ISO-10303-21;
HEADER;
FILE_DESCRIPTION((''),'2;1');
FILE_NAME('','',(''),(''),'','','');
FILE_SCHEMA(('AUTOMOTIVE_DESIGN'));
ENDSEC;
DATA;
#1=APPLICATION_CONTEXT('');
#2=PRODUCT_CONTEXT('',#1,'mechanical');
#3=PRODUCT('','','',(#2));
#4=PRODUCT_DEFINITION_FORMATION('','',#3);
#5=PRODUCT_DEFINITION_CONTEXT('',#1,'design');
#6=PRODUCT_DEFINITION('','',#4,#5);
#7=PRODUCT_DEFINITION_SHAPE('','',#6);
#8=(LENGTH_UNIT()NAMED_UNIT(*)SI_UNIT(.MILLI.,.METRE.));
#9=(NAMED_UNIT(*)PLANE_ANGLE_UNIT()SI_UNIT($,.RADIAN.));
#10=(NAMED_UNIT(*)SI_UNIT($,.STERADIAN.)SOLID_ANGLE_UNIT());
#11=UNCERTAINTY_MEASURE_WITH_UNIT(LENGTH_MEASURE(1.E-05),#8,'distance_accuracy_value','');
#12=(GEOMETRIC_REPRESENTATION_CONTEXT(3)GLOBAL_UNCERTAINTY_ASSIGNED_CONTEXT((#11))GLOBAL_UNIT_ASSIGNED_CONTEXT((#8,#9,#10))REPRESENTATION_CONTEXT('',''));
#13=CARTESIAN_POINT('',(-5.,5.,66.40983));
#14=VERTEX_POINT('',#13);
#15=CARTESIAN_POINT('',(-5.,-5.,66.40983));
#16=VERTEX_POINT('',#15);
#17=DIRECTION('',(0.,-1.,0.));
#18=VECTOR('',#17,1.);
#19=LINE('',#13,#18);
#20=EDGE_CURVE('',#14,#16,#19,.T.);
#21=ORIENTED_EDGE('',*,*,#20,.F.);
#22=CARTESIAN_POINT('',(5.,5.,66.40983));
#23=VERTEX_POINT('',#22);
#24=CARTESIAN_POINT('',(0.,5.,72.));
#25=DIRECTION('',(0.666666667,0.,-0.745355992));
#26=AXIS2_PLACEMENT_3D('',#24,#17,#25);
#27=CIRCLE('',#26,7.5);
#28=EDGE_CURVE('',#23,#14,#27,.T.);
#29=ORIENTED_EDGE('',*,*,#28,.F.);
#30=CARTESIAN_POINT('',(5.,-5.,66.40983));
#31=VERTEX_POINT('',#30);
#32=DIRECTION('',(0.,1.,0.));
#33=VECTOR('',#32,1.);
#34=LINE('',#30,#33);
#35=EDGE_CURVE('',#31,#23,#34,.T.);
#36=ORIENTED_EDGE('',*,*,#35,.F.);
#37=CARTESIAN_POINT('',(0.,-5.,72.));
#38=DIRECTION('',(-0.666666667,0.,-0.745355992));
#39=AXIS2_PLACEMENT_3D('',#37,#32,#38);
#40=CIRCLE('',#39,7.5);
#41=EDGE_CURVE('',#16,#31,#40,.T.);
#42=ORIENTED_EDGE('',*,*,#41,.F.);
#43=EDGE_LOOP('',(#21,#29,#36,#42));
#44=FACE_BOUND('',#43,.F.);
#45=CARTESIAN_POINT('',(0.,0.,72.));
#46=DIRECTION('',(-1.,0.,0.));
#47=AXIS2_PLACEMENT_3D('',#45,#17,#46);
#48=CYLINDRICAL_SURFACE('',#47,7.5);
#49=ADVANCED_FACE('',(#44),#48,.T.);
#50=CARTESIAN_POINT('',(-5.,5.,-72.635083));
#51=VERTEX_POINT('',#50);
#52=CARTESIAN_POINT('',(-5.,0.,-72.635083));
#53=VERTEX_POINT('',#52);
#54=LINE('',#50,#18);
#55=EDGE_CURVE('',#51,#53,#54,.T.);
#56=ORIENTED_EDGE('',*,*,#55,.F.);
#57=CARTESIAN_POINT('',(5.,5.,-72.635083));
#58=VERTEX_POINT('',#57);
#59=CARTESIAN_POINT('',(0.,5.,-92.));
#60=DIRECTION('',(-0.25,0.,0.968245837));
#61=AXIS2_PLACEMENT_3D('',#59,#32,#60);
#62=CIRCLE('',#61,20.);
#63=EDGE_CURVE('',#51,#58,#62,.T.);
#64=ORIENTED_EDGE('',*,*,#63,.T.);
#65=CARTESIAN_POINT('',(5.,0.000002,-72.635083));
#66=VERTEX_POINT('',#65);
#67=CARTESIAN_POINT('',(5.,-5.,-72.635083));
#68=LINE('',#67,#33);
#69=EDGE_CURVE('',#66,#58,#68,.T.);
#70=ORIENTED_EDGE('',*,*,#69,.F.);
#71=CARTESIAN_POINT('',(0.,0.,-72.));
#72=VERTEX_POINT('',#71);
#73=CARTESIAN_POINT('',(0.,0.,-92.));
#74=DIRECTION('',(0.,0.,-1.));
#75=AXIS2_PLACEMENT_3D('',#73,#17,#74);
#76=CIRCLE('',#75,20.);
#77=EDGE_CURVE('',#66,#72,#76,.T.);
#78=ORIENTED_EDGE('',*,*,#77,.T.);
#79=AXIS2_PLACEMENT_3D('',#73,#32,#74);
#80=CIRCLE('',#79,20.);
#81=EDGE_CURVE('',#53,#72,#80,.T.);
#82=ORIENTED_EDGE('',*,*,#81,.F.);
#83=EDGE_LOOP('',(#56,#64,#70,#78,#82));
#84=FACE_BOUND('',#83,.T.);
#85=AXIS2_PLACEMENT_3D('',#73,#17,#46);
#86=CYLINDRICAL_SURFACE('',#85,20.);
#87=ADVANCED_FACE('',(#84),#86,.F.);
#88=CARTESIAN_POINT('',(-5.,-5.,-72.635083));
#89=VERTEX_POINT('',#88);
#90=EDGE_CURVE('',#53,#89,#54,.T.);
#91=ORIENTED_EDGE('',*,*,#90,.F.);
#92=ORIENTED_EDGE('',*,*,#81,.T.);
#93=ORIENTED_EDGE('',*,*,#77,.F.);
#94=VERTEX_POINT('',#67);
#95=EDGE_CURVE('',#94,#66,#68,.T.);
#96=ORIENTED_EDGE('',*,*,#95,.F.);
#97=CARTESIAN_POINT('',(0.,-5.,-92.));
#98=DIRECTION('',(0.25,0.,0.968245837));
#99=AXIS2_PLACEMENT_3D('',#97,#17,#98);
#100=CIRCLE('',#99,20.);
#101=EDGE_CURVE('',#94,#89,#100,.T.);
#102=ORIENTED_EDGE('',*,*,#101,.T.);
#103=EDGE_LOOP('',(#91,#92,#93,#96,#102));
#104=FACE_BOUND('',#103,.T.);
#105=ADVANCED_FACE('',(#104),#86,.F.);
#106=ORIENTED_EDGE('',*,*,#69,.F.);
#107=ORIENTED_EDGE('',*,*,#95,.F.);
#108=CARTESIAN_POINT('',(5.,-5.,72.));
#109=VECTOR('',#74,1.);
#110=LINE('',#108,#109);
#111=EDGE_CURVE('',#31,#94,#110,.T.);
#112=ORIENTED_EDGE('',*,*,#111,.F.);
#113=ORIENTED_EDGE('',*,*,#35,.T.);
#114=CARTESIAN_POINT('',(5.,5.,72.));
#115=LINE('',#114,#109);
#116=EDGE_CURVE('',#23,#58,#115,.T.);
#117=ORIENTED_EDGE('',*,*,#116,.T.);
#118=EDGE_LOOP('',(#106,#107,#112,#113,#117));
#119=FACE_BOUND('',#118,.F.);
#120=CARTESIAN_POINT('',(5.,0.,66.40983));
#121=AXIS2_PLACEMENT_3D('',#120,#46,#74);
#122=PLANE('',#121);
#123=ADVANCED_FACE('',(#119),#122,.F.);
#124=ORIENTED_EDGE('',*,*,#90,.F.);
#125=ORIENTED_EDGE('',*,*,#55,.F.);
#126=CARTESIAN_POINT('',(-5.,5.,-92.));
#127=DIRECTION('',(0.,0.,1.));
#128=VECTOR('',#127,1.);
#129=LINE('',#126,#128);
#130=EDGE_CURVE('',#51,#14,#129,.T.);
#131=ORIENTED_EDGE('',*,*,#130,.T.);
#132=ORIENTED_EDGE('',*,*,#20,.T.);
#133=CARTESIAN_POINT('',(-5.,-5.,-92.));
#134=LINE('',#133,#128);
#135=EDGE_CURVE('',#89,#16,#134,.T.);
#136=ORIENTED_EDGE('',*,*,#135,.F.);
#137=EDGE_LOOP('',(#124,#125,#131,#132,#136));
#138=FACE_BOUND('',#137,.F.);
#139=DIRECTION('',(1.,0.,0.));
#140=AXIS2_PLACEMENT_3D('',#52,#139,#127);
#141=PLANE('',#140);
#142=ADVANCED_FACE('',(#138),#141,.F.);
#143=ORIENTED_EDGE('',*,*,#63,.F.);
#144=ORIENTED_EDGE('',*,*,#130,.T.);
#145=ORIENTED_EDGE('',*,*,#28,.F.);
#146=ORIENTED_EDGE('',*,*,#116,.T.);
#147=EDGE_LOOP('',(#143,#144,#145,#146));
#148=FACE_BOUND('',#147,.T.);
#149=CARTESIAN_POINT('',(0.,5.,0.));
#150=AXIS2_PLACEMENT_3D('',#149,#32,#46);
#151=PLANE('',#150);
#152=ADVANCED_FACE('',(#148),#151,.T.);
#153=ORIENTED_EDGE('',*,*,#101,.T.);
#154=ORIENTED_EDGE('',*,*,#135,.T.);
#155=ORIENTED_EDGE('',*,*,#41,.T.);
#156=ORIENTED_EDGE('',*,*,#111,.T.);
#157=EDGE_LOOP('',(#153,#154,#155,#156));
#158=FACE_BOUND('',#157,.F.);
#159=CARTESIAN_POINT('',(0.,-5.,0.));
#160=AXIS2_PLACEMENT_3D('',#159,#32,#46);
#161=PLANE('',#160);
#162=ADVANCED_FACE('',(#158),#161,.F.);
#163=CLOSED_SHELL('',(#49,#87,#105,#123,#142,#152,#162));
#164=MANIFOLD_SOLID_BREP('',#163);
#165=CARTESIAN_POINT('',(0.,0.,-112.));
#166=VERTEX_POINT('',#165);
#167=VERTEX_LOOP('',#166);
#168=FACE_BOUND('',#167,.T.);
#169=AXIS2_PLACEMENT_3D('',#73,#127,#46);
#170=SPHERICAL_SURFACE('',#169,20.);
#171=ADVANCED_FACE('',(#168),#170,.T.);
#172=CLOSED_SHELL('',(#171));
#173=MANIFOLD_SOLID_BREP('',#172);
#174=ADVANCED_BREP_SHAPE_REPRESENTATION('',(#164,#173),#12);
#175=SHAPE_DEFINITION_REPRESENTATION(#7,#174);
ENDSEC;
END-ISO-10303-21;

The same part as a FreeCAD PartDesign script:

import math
import FreeCAD as App
import Part
import Sketcher

V = App.Vector
Q = App.Units.Quantity

doc = App.newDocument("Part")
body = doc.addObject("PartDesign::Body", "Body")
body.AllowCompound = True

sketch1 = body.newObject("Sketcher::SketchObject", "Sketch")
sketch1.AttachmentSupport = (doc.getObject("XZ_Plane"), [""])
sketch1.MapMode = "FlatFace"
sketch1.addGeometry([
    Part.LineSegment(V(5, 66.40983, 0), V(5, -72.635083, 0)),
    Part.ArcOfCircle(Part.Circle(V(0, -92, 0), V(0, 0, 1), 20), math.radians(75.522488), math.radians(104.477512)),
    Part.LineSegment(V(-5, -72.635083, 0), V(-5, 66.40983, 0)),
    Part.ArcOfCircle(Part.Circle(V(0, 72, 0), V(0, 0, 1), 7.5), math.radians(-48.189685), math.radians(228.189685)),
], False)
sketch1.addConstraint([
    Sketcher.Constraint("Coincident", 0, 2, 1, 1),
    Sketcher.Constraint("Coincident", 1, 2, 2, 1),
    Sketcher.Constraint("Coincident", 2, 2, 3, 2),
    Sketcher.Constraint("Coincident", 3, 1, 0, 1),
    Sketcher.Constraint("Vertical", 0),
    Sketcher.Constraint("Vertical", 2),
    Sketcher.Constraint("Symmetric", 0, 2, 1, 2, -2),
    Sketcher.Constraint("PointOnObject", 3, 3, -2),
    Sketcher.Constraint("Radius", 1, Q("20 mm")),
    Sketcher.Constraint("Radius", 3, Q("7.5 mm")),
    Sketcher.Constraint("DistanceY", 1, 3, -1, 1, Q("92 mm")),
    Sketcher.Constraint("DistanceX", -1, 1, 0, 2, Q("5 mm")),
    Sketcher.Constraint("DistanceY", -1, 1, 3, 3, Q("72 mm")),
])
pad1 = body.newObject("PartDesign::Pad", "Pad")
pad1.Profile = sketch1
pad1.Type = "TwoLengths"
pad1.Length = 5
pad1.Length2 = 5
pad1.Reversed = True

sketch2 = body.newObject("Sketcher::SketchObject", "Sketch001")
sketch2.AttachmentSupport = (doc.getObject("XZ_Plane"), [""])
sketch2.MapMode = "FlatFace"
sketch2.addGeometry([
    Part.LineSegment(V(0, -72, 0), V(0, -112, 0)),
    Part.ArcOfCircle(Part.Circle(V(0, -92, 0), V(0, 0, 1), 20), math.radians(90), math.radians(270)),
], False)
sketch2.addConstraint([
    Sketcher.Constraint("Coincident", 0, 1, 1, 1),
    Sketcher.Constraint("Coincident", 1, 2, 0, 2),
    Sketcher.Constraint("Vertical", 0),
    Sketcher.Constraint("PointOnObject", 1, 3, -2),
    Sketcher.Constraint("PointOnObject", 0, 1, -2),
    Sketcher.Constraint("Radius", 1, Q("20 mm")),
    Sketcher.Constraint("DistanceY", 1, 3, -1, 1, Q("92 mm")),
])
revolution = body.newObject("PartDesign::Revolution", "Revolution")
revolution.Profile = sketch2
revolution.ReferenceAxis = (sketch2, ["V_Axis"])
revolution.Angle = 360

doc.recompute()
